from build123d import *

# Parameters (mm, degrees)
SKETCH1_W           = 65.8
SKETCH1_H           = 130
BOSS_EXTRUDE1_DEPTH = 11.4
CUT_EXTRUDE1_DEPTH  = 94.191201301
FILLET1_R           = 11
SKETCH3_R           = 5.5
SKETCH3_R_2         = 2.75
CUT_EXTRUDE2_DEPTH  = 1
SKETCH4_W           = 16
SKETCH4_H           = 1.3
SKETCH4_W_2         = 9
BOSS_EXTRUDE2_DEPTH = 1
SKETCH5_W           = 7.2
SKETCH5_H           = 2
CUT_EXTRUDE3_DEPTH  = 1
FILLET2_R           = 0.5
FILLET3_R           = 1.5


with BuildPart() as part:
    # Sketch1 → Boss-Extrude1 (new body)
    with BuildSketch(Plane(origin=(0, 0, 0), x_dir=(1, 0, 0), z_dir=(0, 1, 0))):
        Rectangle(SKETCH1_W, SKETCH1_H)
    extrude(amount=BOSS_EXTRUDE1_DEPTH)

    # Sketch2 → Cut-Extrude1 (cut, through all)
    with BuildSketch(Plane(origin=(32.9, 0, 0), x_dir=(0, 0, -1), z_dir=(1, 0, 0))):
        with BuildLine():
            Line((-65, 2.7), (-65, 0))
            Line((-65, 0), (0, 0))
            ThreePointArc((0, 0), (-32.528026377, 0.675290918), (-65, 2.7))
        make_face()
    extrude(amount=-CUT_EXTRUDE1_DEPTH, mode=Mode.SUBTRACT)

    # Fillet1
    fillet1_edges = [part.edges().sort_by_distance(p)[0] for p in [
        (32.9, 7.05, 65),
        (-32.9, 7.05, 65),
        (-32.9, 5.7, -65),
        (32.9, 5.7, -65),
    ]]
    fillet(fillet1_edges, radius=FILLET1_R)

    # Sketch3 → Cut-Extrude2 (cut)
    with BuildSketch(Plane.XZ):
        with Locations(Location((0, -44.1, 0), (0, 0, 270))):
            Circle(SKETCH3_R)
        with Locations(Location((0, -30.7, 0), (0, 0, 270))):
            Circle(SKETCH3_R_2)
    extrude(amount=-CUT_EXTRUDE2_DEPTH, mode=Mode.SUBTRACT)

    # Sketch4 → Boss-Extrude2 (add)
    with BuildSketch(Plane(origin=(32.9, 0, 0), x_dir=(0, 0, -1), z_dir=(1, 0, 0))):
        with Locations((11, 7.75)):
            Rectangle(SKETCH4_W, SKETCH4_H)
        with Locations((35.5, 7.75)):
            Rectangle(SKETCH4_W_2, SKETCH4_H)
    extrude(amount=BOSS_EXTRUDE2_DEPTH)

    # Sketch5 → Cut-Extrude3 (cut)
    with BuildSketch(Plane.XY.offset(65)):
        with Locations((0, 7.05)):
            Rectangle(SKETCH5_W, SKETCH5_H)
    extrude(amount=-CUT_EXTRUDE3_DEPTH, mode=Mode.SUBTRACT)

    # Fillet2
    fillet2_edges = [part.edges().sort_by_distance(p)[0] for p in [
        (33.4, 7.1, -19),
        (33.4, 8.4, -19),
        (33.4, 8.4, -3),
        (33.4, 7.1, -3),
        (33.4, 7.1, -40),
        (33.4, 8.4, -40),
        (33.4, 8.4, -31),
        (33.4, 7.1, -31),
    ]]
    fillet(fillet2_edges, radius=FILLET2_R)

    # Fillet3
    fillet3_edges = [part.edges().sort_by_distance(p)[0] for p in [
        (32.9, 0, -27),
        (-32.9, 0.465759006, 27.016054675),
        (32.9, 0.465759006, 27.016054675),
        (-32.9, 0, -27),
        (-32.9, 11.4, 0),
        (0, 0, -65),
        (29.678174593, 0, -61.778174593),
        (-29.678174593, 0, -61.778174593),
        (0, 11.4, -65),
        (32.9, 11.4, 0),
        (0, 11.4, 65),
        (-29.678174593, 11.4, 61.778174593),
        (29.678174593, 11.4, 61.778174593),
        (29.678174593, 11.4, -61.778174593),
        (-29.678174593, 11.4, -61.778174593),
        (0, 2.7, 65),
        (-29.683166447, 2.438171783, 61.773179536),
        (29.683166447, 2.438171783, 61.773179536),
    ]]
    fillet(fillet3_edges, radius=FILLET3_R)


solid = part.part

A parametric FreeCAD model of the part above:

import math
import FreeCAD as App
import Part
import Sketcher

V = App.Vector


def edges_at(feature, points):
    """Names of the edges that pass closest to the given points."""
    edges = feature.Shape.Edges
    near = lambda p: min(range(len(edges)), key=lambda i: edges[i].distToShape(Part.Vertex(*p))[0])
    return sorted({f"Edge{near(p) + 1}" for p in points})

doc = App.newDocument("Part")
params = doc.addObject("Spreadsheet::Sheet", "Params")
for row, (alias, value) in enumerate([
    ("sketch1_height", "130 mm"),
    ("sketch1_width", "65.8 mm"),
    ("pad1_length", "11.4 mm"),
    ("sketch2_height", "65 mm"),
    ("fillet_radius", "11 mm"),
    ("sketch3_diameter", "11 mm"),
    ("sketch3_diameter2", "5.5 mm"),
    ("pocket2_length", "1 mm"),
    ("sketch4_height", "16 mm"),
    ("sketch4_height2", "9 mm"),
    ("sketch4_width", "1.3 mm"),
    ("pad2_length", "1 mm"),
    ("sketch5_height", "2 mm"),
    ("sketch5_width", "7.2 mm"),
    ("pocket3_length", "1 mm"),
    ("fillet2_radius", "0.5 mm"),
    ("fillet3_radius", "1.5 mm"),
], start=1):
    params.set(f"A{row}", alias)
    params.set(f"B{row}", "=" + value)
    params.setAlias(f"B{row}", alias)

body = doc.addObject("PartDesign::Body", "Body")

# Sketch on XZ plane
sketch1 = body.newObject("Sketcher::SketchObject", "Sketch")
sketch1.AttachmentSupport = (doc.getObject("XZ_Plane"), [""])
sketch1.MapMode = "FlatFace"
sketch1.addGeometry([
    Part.LineSegment(V(-32.9, -65, 0), V(-32.9, 65, 0)),
    Part.LineSegment(V(-32.9, 65, 0), V(32.9, 65, 0)),
    Part.LineSegment(V(32.9, 65, 0), V(32.9, -65, 0)),
    Part.LineSegment(V(32.9, -65, 0), V(-32.9, -65, 0)),
], False)
sketch1.addConstraint([
    Sketcher.Constraint("Coincident", 0, 2, 1, 1),
    Sketcher.Constraint("Coincident", 1, 2, 2, 1),
    Sketcher.Constraint("Coincident", 2, 2, 3, 1),
    Sketcher.Constraint("Coincident", 3, 2, 0, 1),
    Sketcher.Constraint("Vertical", 0),
    Sketcher.Constraint("Horizontal", 1),
    Sketcher.Constraint("Vertical", 2),
    Sketcher.Constraint("Horizontal", 3),
    Sketcher.Constraint("Symmetric", 0, 2, 2, 2, -1, 1),
    Sketcher.Constraint("DistanceY", 0, 1, 0, 2, 130.0),
    Sketcher.Constraint("DistanceX", 1, 1, 1, 2, 65.8),
])
sketch1.setExpression("Constraints[9]", "Params.sketch1_height")
sketch1.setExpression("Constraints[10]", "Params.sketch1_width")
pad1 = body.newObject("PartDesign::Pad", "Pad")
pad1.Profile = sketch1
pad1.setExpression("Length", "Params.pad1_length")
pad1.Reversed = True

# Sketch on YZ plane
sketch2 = body.newObject("Sketcher::SketchObject", "Sketch001")
sketch2.AttachmentSupport = (doc.getObject("YZ_Plane"), [""])
sketch2.MapMode = "FlatFace"
sketch2.AttachmentOffset = App.Placement(V(0, 0, 32.9), App.Rotation())
sketch2.addGeometry([
    Part.LineSegment(V(2.7, 65, 0), V(0, 65, 0)),
    Part.LineSegment(V(0, 65, 0), V(0, 0, 0)),
    Part.ArcOfCircle(Part.Circle(V(783.757408, 0, 0), V(0, 0, 1), 783.757408), math.radians(175.242778), math.radians(180)),
], False)
sketch2.addConstraint([
    Sketcher.Constraint("Coincident", 0, 2, 1, 1),
    Sketcher.Constraint("Tangent", 1, 2, 2, 2),
    Sketcher.Constraint("Coincident", 2, 1, 0, 1),
    Sketcher.Constraint("Horizontal", 0),
    Sketcher.Constraint("Vertical", 1),
    Sketcher.Constraint("Coincident", 1, 2, -1, 1),
    Sketcher.Constraint("DistanceY", 1, 2, 1, 1, 65.0),
    Sketcher.Constraint("Radius", 2, 783.757408),
])
sketch2.setExpression("Constraints[6]", "Params.sketch2_height")
pocket1 = body.newObject("PartDesign::Pocket", "Pocket")
pocket1.Profile = sketch2
pocket1.Type = "ThroughAll"
doc.recompute()

fillet = body.newObject("PartDesign::Fillet", "Fillet")
fillet.Base = (pocket1, edges_at(pocket1, [
    (32.9, 7.05, 65),
    (-32.9, 7.05, 65),
    (-32.9, 5.7, -65),
    (32.9, 5.7, -65),
]))
fillet.setExpression("Radius", "Params.fillet_radius")

# Sketch on XZ plane
sketch3 = body.newObject("Sketcher::SketchObject", "Sketch002")
sketch3.AttachmentSupport = (doc.getObject("XZ_Plane"), [""])
sketch3.MapMode = "FlatFace"
sketch3.addGeometry([
    Part.Circle(V(0, -44.1, 0), V(0, 0, 1), 5.5),
    Part.Circle(V(0, -30.7, 0), V(0, 0, 1), 2.75),
], False)
sketch3.addConstraint([
    Sketcher.Constraint("PointOnObject", 0, 3, -2),
    Sketcher.Constraint("PointOnObject", 1, 3, -2),
    Sketcher.Constraint("Diameter", 0, 11.0),
    Sketcher.Constraint("Diameter", 1, 5.5),
    Sketcher.Constraint("DistanceY", 0, 3, -1, 1, 44.1),
    Sketcher.Constraint("DistanceY", 1, 3, -1, 1, 30.7),
])
sketch3.setExpression("Constraints[2]", "Params.sketch3_diameter")
sketch3.setExpression("Constraints[3]", "Params.sketch3_diameter2")
pocket2 = body.newObject("PartDesign::Pocket", "Pocket001")
pocket2.Profile = sketch3
pocket2.setExpression("Length", "Params.pocket2_length")

# Sketch on YZ plane
sketch4 = body.newObject("Sketcher::SketchObject", "Sketch003")
sketch4.AttachmentSupport = (doc.getObject("YZ_Plane"), [""])
sketch4.MapMode = "FlatFace"
sketch4.AttachmentOffset = App.Placement(V(0, 0, 32.9), App.Rotation())
sketch4.addGeometry([
    Part.LineSegment(V(8.4, -3, 0), V(7.1, -3, 0)),  # 0
    Part.LineSegment(V(7.1, -3, 0), V(7.1, -19, 0)),  # 1
    Part.LineSegment(V(7.1, -19, 0), V(8.4, -19, 0)),  # 2
    Part.LineSegment(V(8.4, -19, 0), V(8.4, -3, 0)),  # 3
    Part.LineSegment(V(8.4, -31, 0), V(7.1, -31, 0)),  # 4
    Part.LineSegment(V(7.1, -31, 0), V(7.1, -40, 0)),  # 5
    Part.LineSegment(V(7.1, -40, 0), V(8.4, -40, 0)),  # 6
    Part.LineSegment(V(8.4, -40, 0), V(8.4, -31, 0)),  # 7
], False)
sketch4.addConstraint([
    Sketcher.Constraint("Coincident", 0, 2, 1, 1),
    Sketcher.Constraint("Coincident", 1, 2, 2, 1),
    Sketcher.Constraint("Coincident", 2, 2, 3, 1),
    Sketcher.Constraint("Coincident", 3, 2, 0, 1),
    Sketcher.Constraint("Coincident", 4, 2, 5, 1),
    Sketcher.Constraint("Coincident", 5, 2, 6, 1),
    Sketcher.Constraint("Coincident", 6, 2, 7, 1),
    Sketcher.Constraint("Coincident", 7, 2, 4, 1),
    Sketcher.Constraint("Horizontal", 0),
    Sketcher.Constraint("Vertical", 1),
    Sketcher.Constraint("Horizontal", 2),
    Sketcher.Constraint("Vertical", 3),
    Sketcher.Constraint("Horizontal", 4),
    Sketcher.Constraint("Vertical", 5),
    Sketcher.Constraint("Horizontal", 6),
    Sketcher.Constraint("Vertical", 7),
    Sketcher.Constraint("Vertical", 1, 2, 4, 2),
    Sketcher.Constraint("Vertical", 3, 2, 6, 2),
    Sketcher.Constraint("DistanceY", 1, 2, 1, 1, 16.0),
    Sketcher.Constraint("DistanceY", 5, 2, 5, 1, 9.0),
    Sketcher.Constraint("DistanceX", 0, 2, 0, 1, 1.3),
    Sketcher.Constraint("DistanceY", 0, 2, -1, 1, 3.0),
    Sketcher.Constraint("DistanceY", 4, 2, -1, 1, 31.0),
    Sketcher.Constraint("DistanceX", -1, 1, 0, 2, 7.1),
])
sketch4.setExpression("Constraints[18]", "Params.sketch4_height")
sketch4.setExpression("Constraints[19]", "Params.sketch4_height2")
sketch4.setExpression("Constraints[20]", "Params.sketch4_width")
pad2 = body.newObject("PartDesign::Pad", "Pad001")
pad2.Profile = sketch4
pad2.setExpression("Length", "Params.pad2_length")

# Sketch on XY plane
sketch5 = body.newObject("Sketcher::SketchObject", "Sketch004")
sketch5.AttachmentSupport = (doc.getObject("XY_Plane"), [""])
sketch5.MapMode = "FlatFace"
sketch5.AttachmentOffset = App.Placement(V(0, 0, 65), App.Rotation())
sketch5.addGeometry([
    Part.LineSegment(V(-3.6, 8.05, 0), V(-3.6, 6.05, 0)),
    Part.LineSegment(V(-3.6, 6.05, 0), V(3.6, 6.05, 0)),
    Part.LineSegment(V(3.6, 6.05, 0), V(3.6, 8.05, 0)),
    Part.LineSegment(V(3.6, 8.05, 0), V(-3.6, 8.05, 0)),
], False)
sketch5.addConstraint([
    Sketcher.Constraint("Coincident", 0, 2, 1, 1),
    Sketcher.Constraint("Coincident", 1, 2, 2, 1),
    Sketcher.Constraint("Coincident", 2, 2, 3, 1),
    Sketcher.Constraint("Coincident", 3, 2, 0, 1),
    Sketcher.Constraint("Vertical", 0),
    Sketcher.Constraint("Horizontal", 1),
    Sketcher.Constraint("Vertical", 2),
    Sketcher.Constraint("Horizontal", 3),
    Sketcher.Constraint("DistanceY", 0, 2, 0, 1, 2.0),
    Sketcher.Constraint("DistanceX", 1, 1, 1, 2, 7.2),
    Sketcher.Constraint("DistanceX", 0, 2, -1, 1, 3.6),
    Sketcher.Constraint("DistanceY", -1, 1, 0, 2, 6.05),
])
sketch5.setExpression("Constraints[8]", "Params.sketch5_height")
sketch5.setExpression("Constraints[9]", "Params.sketch5_width")
pocket3 = body.newObject("PartDesign::Pocket", "Pocket002")
pocket3.Profile = sketch5
pocket3.setExpression("Length", "Params.pocket3_length")
doc.recompute()

fillet2 = body.newObject("PartDesign::Fillet", "Fillet001")
fillet2.Base = (pocket3, edges_at(pocket3, [
    (33.4, 7.1, -19),
    (33.4, 8.4, -19),
    (33.4, 8.4, -3),
    (33.4, 7.1, -3),
    (33.4, 7.1, -40),
    (33.4, 8.4, -40),
    (33.4, 8.4, -31),
    (33.4, 7.1, -31),
]))
fillet2.setExpression("Radius", "Params.fillet2_radius")
doc.recompute()

fillet3 = body.newObject("PartDesign::Fillet", "Fillet002")
fillet3.Base = (fillet2, edges_at(fillet2, [
    (32.9, 0, -27),
    (-32.9, 0.466, 27.016),
    (32.9, 0.466, 27.016),
    (-32.9, 0, -27),
    (-32.9, 11.4, 0),
    (0, 0, -65),
    (29.678, 0, -61.778),
    (-29.678, 0, -61.778),
    (0, 11.4, -65),
    (32.9, 11.4, 0),
    (0, 11.4, 65),
    (-29.678, 11.4, 61.778),
    (29.678, 11.4, 61.778),
    (29.678, 11.4, -61.778),
    (-29.678, 11.4, -61.778),
    (0, 2.7, 65),
    (-29.683, 2.438, 61.773),
    (29.683, 2.438, 61.773),
]))
fillet3.setExpression("Radius", "Params.fillet3_radius")

doc.recompute()
